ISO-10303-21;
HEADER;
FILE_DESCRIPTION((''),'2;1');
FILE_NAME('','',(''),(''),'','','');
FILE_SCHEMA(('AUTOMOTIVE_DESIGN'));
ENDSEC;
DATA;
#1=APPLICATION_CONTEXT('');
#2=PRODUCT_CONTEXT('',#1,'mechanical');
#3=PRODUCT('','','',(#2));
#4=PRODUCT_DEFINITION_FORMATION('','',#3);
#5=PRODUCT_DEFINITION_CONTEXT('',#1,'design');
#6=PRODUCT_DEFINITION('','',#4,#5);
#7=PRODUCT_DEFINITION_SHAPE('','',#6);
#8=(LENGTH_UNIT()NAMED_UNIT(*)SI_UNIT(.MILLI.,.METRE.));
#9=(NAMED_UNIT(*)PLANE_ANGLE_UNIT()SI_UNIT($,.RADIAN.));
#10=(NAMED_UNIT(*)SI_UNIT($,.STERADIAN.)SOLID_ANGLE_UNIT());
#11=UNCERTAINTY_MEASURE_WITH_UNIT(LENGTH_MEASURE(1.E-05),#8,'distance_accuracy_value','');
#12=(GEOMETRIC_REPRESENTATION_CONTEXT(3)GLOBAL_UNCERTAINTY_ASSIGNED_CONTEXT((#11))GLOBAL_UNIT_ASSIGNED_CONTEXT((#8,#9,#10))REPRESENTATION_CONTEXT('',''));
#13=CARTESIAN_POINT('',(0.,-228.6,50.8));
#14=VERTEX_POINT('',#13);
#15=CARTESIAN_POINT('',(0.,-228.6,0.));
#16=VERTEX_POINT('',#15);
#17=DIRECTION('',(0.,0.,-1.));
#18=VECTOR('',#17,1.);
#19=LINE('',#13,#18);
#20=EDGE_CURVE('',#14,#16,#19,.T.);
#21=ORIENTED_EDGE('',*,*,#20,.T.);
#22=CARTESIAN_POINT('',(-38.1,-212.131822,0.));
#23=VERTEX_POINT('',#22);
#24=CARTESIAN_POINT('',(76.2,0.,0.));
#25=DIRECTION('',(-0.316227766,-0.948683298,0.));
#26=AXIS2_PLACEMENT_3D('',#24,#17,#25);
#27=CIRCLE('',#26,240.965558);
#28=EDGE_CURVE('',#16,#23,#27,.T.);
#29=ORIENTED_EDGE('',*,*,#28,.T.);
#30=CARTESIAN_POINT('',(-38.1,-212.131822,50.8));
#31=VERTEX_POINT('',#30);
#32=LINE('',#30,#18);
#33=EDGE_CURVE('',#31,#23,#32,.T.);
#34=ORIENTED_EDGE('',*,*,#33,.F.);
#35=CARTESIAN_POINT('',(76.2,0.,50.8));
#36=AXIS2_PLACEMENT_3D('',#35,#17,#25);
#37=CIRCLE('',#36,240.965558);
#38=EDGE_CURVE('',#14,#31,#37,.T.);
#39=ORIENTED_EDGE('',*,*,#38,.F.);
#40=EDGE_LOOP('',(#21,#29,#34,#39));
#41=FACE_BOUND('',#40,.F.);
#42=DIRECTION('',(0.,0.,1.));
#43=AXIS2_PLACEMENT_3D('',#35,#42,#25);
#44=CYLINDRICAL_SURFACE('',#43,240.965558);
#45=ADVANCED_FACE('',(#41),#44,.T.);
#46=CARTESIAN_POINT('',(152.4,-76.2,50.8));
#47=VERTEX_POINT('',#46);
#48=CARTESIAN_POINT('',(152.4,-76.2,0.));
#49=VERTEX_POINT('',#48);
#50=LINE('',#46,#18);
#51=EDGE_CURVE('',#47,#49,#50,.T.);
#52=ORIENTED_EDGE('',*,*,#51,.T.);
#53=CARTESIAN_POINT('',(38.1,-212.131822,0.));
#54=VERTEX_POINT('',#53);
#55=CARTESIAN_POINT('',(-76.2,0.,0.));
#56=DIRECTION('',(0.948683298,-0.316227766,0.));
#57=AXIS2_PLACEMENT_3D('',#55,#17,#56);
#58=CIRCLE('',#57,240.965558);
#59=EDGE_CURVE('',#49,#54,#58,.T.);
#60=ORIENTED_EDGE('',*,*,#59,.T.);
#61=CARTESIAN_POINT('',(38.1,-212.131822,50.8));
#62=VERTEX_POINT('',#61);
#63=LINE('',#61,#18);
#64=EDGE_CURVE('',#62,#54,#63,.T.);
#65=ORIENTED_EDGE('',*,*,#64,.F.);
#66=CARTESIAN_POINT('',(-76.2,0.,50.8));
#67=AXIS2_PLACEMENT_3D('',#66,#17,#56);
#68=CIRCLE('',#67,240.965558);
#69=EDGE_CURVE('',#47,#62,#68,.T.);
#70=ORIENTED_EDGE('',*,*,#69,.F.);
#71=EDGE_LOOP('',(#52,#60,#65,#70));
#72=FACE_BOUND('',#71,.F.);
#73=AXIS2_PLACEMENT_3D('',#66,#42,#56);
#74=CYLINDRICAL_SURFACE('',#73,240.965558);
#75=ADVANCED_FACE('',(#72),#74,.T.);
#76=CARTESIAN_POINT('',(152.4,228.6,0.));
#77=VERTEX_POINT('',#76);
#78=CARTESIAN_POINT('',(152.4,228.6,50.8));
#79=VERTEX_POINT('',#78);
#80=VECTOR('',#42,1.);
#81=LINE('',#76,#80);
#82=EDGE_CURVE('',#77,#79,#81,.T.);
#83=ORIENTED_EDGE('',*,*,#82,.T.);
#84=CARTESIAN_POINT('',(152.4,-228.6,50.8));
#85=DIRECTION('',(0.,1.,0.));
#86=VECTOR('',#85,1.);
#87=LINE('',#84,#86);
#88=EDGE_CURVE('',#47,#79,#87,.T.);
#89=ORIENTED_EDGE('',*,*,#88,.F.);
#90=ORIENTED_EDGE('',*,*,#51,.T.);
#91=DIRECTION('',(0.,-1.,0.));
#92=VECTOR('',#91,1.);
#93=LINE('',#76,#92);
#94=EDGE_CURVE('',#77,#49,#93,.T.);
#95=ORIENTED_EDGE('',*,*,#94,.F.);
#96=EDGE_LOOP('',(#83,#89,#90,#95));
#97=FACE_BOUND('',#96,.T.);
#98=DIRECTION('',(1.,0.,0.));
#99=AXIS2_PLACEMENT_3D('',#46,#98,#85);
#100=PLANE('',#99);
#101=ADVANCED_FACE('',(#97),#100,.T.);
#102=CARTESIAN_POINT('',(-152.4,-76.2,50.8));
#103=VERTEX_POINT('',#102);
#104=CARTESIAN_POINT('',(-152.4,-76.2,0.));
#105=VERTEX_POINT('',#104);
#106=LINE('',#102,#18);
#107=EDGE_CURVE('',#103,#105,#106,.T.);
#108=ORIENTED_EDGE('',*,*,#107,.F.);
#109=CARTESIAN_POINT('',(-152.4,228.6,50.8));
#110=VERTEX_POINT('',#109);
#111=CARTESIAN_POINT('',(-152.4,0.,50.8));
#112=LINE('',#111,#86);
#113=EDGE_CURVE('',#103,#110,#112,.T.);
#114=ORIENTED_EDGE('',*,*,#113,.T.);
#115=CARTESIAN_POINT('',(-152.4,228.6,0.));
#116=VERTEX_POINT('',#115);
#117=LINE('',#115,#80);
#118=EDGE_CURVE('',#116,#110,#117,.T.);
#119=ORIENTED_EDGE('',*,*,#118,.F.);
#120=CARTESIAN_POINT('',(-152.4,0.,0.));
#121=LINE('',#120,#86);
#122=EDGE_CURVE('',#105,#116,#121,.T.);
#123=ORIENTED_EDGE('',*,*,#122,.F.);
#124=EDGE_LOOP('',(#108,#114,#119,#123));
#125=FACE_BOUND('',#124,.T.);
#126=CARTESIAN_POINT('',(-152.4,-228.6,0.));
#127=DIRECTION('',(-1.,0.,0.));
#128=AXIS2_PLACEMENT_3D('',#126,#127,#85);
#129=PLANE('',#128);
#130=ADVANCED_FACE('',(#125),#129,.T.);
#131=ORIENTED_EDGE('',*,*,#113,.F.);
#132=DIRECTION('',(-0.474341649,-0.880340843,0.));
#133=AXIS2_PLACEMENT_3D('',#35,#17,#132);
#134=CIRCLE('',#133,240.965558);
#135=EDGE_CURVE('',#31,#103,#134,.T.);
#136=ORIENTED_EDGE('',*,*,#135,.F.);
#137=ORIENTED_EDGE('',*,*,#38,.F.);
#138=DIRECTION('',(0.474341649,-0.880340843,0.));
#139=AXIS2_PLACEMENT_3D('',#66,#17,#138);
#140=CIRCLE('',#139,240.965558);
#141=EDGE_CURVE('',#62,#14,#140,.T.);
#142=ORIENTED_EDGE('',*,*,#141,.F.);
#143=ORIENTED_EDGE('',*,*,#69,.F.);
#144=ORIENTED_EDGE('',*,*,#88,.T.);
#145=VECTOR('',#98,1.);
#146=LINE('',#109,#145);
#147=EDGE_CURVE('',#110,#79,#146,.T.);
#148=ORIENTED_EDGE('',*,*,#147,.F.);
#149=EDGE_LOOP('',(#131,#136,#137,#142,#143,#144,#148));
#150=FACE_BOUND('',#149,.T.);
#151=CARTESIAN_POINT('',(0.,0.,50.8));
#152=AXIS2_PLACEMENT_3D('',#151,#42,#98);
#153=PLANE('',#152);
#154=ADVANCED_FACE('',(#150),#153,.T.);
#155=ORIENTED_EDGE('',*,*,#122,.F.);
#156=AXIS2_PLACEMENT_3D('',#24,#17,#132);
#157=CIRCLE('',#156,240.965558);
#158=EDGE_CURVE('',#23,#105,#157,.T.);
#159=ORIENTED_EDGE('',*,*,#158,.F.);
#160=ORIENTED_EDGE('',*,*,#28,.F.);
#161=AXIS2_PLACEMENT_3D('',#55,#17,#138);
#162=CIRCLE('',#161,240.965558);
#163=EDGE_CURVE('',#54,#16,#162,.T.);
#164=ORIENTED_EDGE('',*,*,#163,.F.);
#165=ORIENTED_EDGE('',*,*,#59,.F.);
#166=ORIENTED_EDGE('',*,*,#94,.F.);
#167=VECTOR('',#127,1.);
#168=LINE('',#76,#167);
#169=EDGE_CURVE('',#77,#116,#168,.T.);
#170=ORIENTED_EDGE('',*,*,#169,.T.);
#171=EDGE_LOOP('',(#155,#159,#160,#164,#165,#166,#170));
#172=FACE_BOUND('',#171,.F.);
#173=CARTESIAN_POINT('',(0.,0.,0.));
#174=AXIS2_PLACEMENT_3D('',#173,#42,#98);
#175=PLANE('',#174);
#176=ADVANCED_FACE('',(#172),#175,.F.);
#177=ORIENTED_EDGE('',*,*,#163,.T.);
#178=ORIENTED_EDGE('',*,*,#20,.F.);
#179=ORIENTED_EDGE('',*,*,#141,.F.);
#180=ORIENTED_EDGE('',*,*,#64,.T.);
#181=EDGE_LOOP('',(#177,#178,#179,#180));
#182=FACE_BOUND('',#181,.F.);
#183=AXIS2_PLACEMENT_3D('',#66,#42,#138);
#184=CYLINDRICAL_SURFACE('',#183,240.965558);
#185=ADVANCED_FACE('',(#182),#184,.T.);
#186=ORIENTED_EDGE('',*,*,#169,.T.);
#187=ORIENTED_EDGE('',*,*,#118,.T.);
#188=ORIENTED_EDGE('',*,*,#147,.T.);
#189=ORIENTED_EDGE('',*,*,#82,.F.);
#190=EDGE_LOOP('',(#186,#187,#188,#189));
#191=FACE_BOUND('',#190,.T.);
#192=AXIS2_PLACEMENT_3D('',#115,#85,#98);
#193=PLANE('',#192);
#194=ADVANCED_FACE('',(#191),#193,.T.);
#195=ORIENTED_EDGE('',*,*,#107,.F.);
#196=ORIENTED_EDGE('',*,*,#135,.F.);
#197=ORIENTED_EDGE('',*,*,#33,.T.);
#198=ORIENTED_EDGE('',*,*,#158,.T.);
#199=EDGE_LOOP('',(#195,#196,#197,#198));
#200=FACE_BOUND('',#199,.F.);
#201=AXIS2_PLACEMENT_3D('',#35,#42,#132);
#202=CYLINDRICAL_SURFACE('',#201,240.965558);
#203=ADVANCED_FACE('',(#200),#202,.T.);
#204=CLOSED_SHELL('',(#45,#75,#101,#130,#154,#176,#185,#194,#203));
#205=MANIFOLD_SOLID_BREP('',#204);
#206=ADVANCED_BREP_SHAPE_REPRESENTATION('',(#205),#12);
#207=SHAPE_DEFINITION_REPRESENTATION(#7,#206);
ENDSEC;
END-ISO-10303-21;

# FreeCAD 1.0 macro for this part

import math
import FreeCAD as App
import Part
import Sketcher

V = App.Vector
Q = App.Units.Quantity

doc = App.newDocument("Part")
body = doc.addObject("PartDesign::Body", "Body")

sketch1 = body.newObject("Sketcher::SketchObject", "Sketch")
sketch1.AttachmentSupport = (doc.getObject("XY_Plane"), [""])
sketch1.MapMode = "FlatFace"
sketch1.addGeometry([
    Part.LineSegment(V(-152.4, 228.6, 0), V(-152.4, -228.6, 0)),
    Part.LineSegment(V(-152.4, -228.6, 0), V(152.4, -228.6, 0)),
    Part.LineSegment(V(152.4, -228.6, 0), V(152.4, 228.6, 0)),
    Part.LineSegment(V(152.4, 228.6, 0), V(-152.4, 228.6, 0)),
], False)
sketch1.addConstraint([
    Sketcher.Constraint("Coincident", 0, 2, 1, 1),
    Sketcher.Constraint("Coincident", 1, 2, 2, 1),
    Sketcher.Constraint("Coincident", 2, 2, 3, 1),
    Sketcher.Constraint("Coincident", 3, 2, 0, 1),
    Sketcher.Constraint("Vertical", 0),
    Sketcher.Constraint("Horizontal", 1),
    Sketcher.Constraint("Vertical", 2),
    Sketcher.Constraint("Horizontal", 3),
    Sketcher.Constraint("Symmetric", 0, 2, 2, 2, -1, 1),
    Sketcher.Constraint("DistanceX", 1, 1, 1, 2, Q("12 in")),
    Sketcher.Constraint("DistanceY", 0, 2, 0, 1, Q("18 in")),
])
pad1 = body.newObject("PartDesign::Pad", "Pad")
pad1.Profile = sketch1
pad1.Length = Q("2 in")

sketch2 = body.newObject("Sketcher::SketchObject", "Sketch001")
sketch2.AttachmentSupport = (doc.getObject("XY_Plane"), [""])
sketch2.MapMode = "FlatFace"
sketch2.AttachmentOffset = App.Placement(V(0, 0, 2 * 25.4), App.Rotation())
sketch2.addGeometry([
    Part.LineSegment(V(38.1, -228.6, 0), V(38.1, -212.131822, 0)),
    Part.ArcOfCircle(Part.Circle(V(-76.2, 0, 0), V(0, 0, 1), 240.965558), math.radians(-61.683506), math.radians(-18.434949)),
    Part.LineSegment(V(152.4, -76.2, 0), V(152.4, 0, 0)),
    Part.LineSegment(V(152.4, 0, 0), V(38.1, 0, 0)),
    Part.LineSegment(V(38.1, 0, 0), V(38.1, 228.6, 0)),
    Part.LineSegment(V(38.1, 228.6, 0), V(-38.1, 228.6, 0)),
    Part.LineSegment(V(-38.1, 228.6, 0), V(-38.1, -228.6, 0)),
    Part.LineSegment(V(-38.1, -228.6, 0), V(38.1, -228.6, 0)),
], False)
sketch2.addConstraint([
    Sketcher.Constraint("Coincident", 0, 2, 1, 1),
    Sketcher.Constraint("Coincident", 1, 2, 2, 1),
    Sketcher.Constraint("Coincident", 2, 2, 3, 1),
    Sketcher.Constraint("Coincident", 3, 2, 4, 1),
    Sketcher.Constraint("Coincident", 4, 2, 5, 1),
    Sketcher.Constraint("Coincident", 5, 2, 6, 1),
    Sketcher.Constraint("Coincident", 6, 2, 7, 1),
    Sketcher.Constraint("Coincident", 7, 2, 0, 1),
    Sketcher.Constraint("Vertical", 0),
    Sketcher.Constraint("Vertical", 2),
    Sketcher.Constraint("Horizontal", 3),
    Sketcher.Constraint("Vertical", 4),
    Sketcher.Constraint("Horizontal", 5),
    Sketcher.Constraint("Vertical", 6),
    Sketcher.Constraint("Horizontal", 7),
    Sketcher.Constraint("Symmetric", 4, 2, 6, 2, -1, 1),
    Sketcher.Constraint("PointOnObject", 1, 3, -1),
    Sketcher.Constraint("PointOnObject", 2, 2, -1),
    Sketcher.Constraint("Vertical", 0, 2, 3, 2),
    Sketcher.Constraint("Equal", 7, 2),
    Sketcher.Constraint("DistanceX", 5, 2, 5, 1, Q("3 in")),
    Sketcher.Constraint("DistanceY", 4, 1, 4, 2, Q("9 in")),
    Sketcher.Constraint("DistanceX", 3, 2, 3, 1, Q("4.5 in")),
    Sketcher.Constraint("DistanceX", 1, 3, -1, 1, Q("3 in")),
])
pad2 = body.newObject("PartDesign::Pad", "Pad001")
pad2.Profile = sketch2
pad2.Length = Q("2 in")
pad2.Reversed = True

sketch3 = body.newObject("Sketcher::SketchObject", "Sketch002")
sketch3.AttachmentSupport = (doc.getObject("XY_Plane"), [""])
sketch3.MapMode = "FlatFace"
sketch3.AttachmentOffset = App.Placement(V(0, 0, 2 * 25.4), App.Rotation())
sketch3.addGeometry([
    Part.ArcOfCircle(Part.Circle(V(76.2, 0, 0), V(0, 0, 1), 240.965558), math.radians(-118.316494), math.radians(-108.434949)),
    Part.ArcOfCircle(Part.Circle(V(76.2, 0, 0), V(0, 0, 1), 240.965558), math.radians(-161.565051), math.radians(-118.316494)),
    Part.LineSegment(V(-152.4, -76.2, 0), V(-152.4, -228.6, 0)),
    Part.LineSegment(V(-152.4, -228.6, 0), V(0, -228.6, 0)),
], False)
sketch3.addConstraint([
    Sketcher.Constraint("Tangent", 0, 1, 1, 2),
    Sketcher.Constraint("Coincident", 1, 1, 2, 1),
    Sketcher.Constraint("Coincident", 2, 2, 3, 1),
    Sketcher.Constraint("Coincident", 3, 2, 0, 2),
    Sketcher.Constraint("Vertical", 2),
    Sketcher.Constraint("Horizontal", 3),
    Sketcher.Constraint("Equal", 0, 1),
    Sketcher.Constraint("PointOnObject", 0, 3, -1),
    Sketcher.Constraint("PointOnObject", 3, 2, -2),
    Sketcher.Constraint("Equal", 3, 2),
    Sketcher.Constraint("DistanceX", 3, 1, 3, 2, Q("6 in")),
    Sketcher.Constraint("DistanceX", -1, 1, 0, 3, Q("3 in")),
    Sketcher.Constraint("DistanceX", 0, 1, -1, 1, Q("1.5 in")),
])
pocket1 = body.newObject("PartDesign::Pocket", "Pocket")
pocket1.Profile = sketch3
pocket1.Length = Q("2 in")

sketch4 = body.newObject("Sketcher::SketchObject", "Sketch003")
sketch4.AttachmentSupport = (doc.getObject("XY_Plane"), [""])
sketch4.MapMode = "FlatFace"
sketch4.AttachmentOffset = App.Placement(V(0, 0, 2 * 25.4), App.Rotation())
sketch4.addGeometry([
    Part.ArcOfCircle(Part.Circle(V(-76.2, 0, 0), V(0, 0, 1), 240.965558), math.radians(-71.565051), math.radians(-61.683506)),
    Part.LineSegment(V(0, -228.6, 0), V(152.4, -228.6, 0)),
    Part.LineSegment(V(152.4, -228.6, 0), V(152.4, -76.2, 0)),
    Part.ArcOfCircle(Part.Circle(V(-76.2, 0, 0), V(0, 0, 1), 240.965558), math.radians(-61.683506), math.radians(-18.434949)),
], False)
sketch4.addConstraint([
    Sketcher.Constraint("Coincident", 0, 1, 1, 1),
    Sketcher.Constraint("Coincident", 1, 2, 2, 1),
    Sketcher.Constraint("Coincident", 2, 2, 3, 2),
    Sketcher.Constraint("Tangent", 3, 1, 0, 2),
    Sketcher.Constraint("Horizontal", 1),
    Sketcher.Constraint("Vertical", 2),
    Sketcher.Constraint("Equal", 0, 3),
    Sketcher.Constraint("PointOnObject", 0, 3, -1),
    Sketcher.Constraint("PointOnObject", 0, 1, -2),
    Sketcher.Constraint("Equal", 1, 2),
    Sketcher.Constraint("DistanceX", 1, 1, 1, 2, Q("6 in")),
    Sketcher.Constraint("DistanceX", 0, 3, -1, 1, Q("3 in")),
    Sketcher.Constraint("DistanceX", -1, 1, 3, 1, Q("1.5 in")),
])
pocket2 = body.newObject("PartDesign::Pocket", "Pocket001")
pocket2.Profile = sketch4
pocket2.Length = Q("2 in")

sketch5 = body.newObject("Sketcher::SketchObject", "Sketch004")
sketch5.AttachmentSupport = (doc.getObject("XY_Plane"), [""])
sketch5.MapMode = "FlatFace"
sketch5.AttachmentOffset = App.Placement(V(0, 0, 2 * 25.4), App.Rotation())
sketch5.addGeometry([
    Part.LineSegment(V(-38.1, -228.6, 0), V(-38.1, -212.131822, 0)),
    Part.ArcOfCircle(Part.Circle(V(76.2, 0, 0), V(0, 0, 1), 240.965558), math.radians(-161.565051), math.radians(-118.316494)),
    Part.LineSegment(V(-152.4, -76.2, 0), V(-152.4, -228.6, 0)),
    Part.LineSegment(V(-152.4, -228.6, 0), V(-38.1, -228.6, 0)),
    Part.ArcOfCircle(Part.Circle(V(-76.2, 0, 0), V(0, 0, 1), 240.965558), math.radians(-61.683506), math.radians(-18.434949)),
    Part.LineSegment(V(38.1, -212.131822, 0), V(38.1, -228.6, 0)),
    Part.LineSegment(V(38.1, -228.6, 0), V(152.4, -228.6, 0)),
    Part.LineSegment(V(152.4, -228.6, 0), V(152.4, -76.2, 0)),
], False)
sketch5.addConstraint([
    Sketcher.Constraint("Coincident", 0, 2, 1, 2),
    Sketcher.Constraint("Coincident", 1, 1, 2, 1),
    Sketcher.Constraint("Coincident", 2, 2, 3, 1),
    Sketcher.Constraint("Coincident", 3, 2, 0, 1),
    Sketcher.Constraint("Coincident", 4, 1, 5, 1),
    Sketcher.Constraint("Coincident", 5, 2, 6, 1),
    Sketcher.Constraint("Coincident", 6, 2, 7, 1),
    Sketcher.Constraint("Coincident", 7, 2, 4, 2),
    Sketcher.Constraint("Vertical", 0),
    Sketcher.Constraint("Vertical", 2),
    Sketcher.Constraint("Horizontal", 3),
    Sketcher.Constraint("Vertical", 5),
    Sketcher.Constraint("Horizontal", 6),
    Sketcher.Constraint("Vertical", 7),
    Sketcher.Constraint("Equal", 1, 4),
    Sketcher.Constraint("Symmetric", 1, 3, 4, 3, -1, 1),
    Sketcher.Constraint("Symmetric", 0, 2, 4, 1, -2),
    Sketcher.Constraint("Symmetric", 2, 2, 6, 2, -2),
    Sketcher.Constraint("DistanceY", 2, 2, 2, 1, Q("6 in")),
    Sketcher.Constraint("DistanceX", 3, 1, 3, 2, Q("4.5 in")),
    Sketcher.Constraint("DistanceX", -1, 1, 1, 3, Q("3 in")),
    Sketcher.Constraint("DistanceX", 1, 1, -1, 1, Q("6 in")),
    Sketcher.Constraint("DistanceY", 2, 2, -1, 1, Q("9 in")),
])
pocket3 = body.newObject("PartDesign::Pocket", "Pocket002")
pocket3.Profile = sketch5
pocket3.Length = Q("2 in")

doc.recompute()
